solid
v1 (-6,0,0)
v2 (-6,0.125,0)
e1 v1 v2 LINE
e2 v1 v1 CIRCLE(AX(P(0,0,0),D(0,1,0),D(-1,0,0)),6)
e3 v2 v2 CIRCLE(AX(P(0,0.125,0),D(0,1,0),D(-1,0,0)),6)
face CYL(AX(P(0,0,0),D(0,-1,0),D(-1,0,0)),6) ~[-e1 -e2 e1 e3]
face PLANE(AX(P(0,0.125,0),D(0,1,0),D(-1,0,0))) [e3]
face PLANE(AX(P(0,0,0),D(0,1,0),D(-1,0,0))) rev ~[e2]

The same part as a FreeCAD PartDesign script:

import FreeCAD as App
import Part
import Sketcher
from FreeCAD import Vector
Q = App.Units.Quantity

doc = App.newDocument("Part")
body = doc.addObject("PartDesign::Body", "Body")

# Sketch on XZ plane
sketch1 = body.newObject("Sketcher::SketchObject", "Sketch")
sketch1.AttachmentSupport = (doc.getObject("XZ_Plane"), [""])
sketch1.MapMode = "FlatFace"
sketch1.addGeometry(Part.Circle(Vector(0, 0, 0), Vector(0, 0, 1), 6), False)
sketch1.addConstraint([
    Sketcher.Constraint("Coincident", 0, 3, -1, 1),
    Sketcher.Constraint("Diameter", 0, Q("12 mm")),
])
pad1 = body.newObject("PartDesign::Pad", "Pad")
pad1.Profile = sketch1
pad1.Length = 0.125
pad1.Reversed = True

doc.recompute()
